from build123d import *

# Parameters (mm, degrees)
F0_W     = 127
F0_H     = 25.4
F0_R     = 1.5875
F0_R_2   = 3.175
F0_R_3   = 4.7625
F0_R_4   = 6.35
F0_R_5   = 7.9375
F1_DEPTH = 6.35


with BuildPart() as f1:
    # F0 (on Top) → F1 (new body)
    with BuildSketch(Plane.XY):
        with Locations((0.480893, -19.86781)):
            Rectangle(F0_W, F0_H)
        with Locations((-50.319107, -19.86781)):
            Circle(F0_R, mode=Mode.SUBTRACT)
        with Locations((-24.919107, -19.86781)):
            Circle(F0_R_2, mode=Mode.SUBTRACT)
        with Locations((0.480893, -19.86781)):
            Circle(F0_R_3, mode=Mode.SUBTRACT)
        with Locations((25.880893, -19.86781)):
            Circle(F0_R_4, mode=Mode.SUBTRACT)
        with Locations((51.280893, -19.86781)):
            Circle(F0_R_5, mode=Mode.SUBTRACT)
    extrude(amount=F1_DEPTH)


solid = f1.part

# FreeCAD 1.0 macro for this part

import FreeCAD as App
import Part
import Sketcher

V = App.Vector
Q = App.Units.Quantity

doc = App.newDocument("Part")
body = doc.addObject("PartDesign::Body", "Body")

# Sketch on XY plane
sketch1 = doc.addObject("Sketcher::SketchObject", "Sketch")
body.addObject(sketch1)
sketch1.AttachmentSupport = (doc.XY_Plane, [""])
sketch1.MapMode = "FlatFace"
sketch1.addGeometry(Part.LineSegment(V(-63, -7.2, 0), V(-63, -32.6, 0)), False)
sketch1.addGeometry(Part.LineSegment(V(-63, -32.6, 0), V(64, -32.6, 0)), False)
sketch1.addGeometry(Part.LineSegment(V(64, -32.6, 0), V(64, -7.2, 0)), False)
sketch1.addGeometry(Part.LineSegment(V(64, -7.2, 0), V(-63, -7.2, 0)), False)
sketch1.addGeometry(Part.Circle(V(-50.3, -19.9, 0), V(0, 0, 1), 1.6), False)
sketch1.addGeometry(Part.Circle(V(-24.9, -19.9, 0), V(0, 0, 1), 3.2), False)
sketch1.addGeometry(Part.Circle(V(0.5, -19.9, 0), V(0, 0, 1), 4.8), False)
sketch1.addGeometry(Part.Circle(V(25.9, -19.9, 0), V(0, 0, 1), 6.3), False)
sketch1.addGeometry(Part.Circle(V(51.3, -19.9, 0), V(0, 0, 1), 7.9), False)
sketch1.addConstraint(Sketcher.Constraint("Coincident", 0, 2, 1, 1))
sketch1.addConstraint(Sketcher.Constraint("Coincident", 1, 2, 2, 1))
sketch1.addConstraint(Sketcher.Constraint("Coincident", 2, 2, 3, 1))
sketch1.addConstraint(Sketcher.Constraint("Coincident", 3, 2, 0, 1))
sketch1.addConstraint(Sketcher.Constraint("Vertical", 0))
sketch1.addConstraint(Sketcher.Constraint("Horizontal", 1))
sketch1.addConstraint(Sketcher.Constraint("Vertical", 2))
sketch1.addConstraint(Sketcher.Constraint("Horizontal", 3))
sketch1.addConstraint(Sketcher.Constraint("Horizontal", 4, 3, 5, 3))
sketch1.addConstraint(Sketcher.Constraint("Horizontal", 5, 3, 6, 3))
sketch1.addConstraint(Sketcher.Constraint("Horizontal", 6, 3, 7, 3))
sketch1.addConstraint(Sketcher.Constraint("Horizontal", 7, 3, 8, 3))
sketch1.addConstraint(Sketcher.Constraint("Diameter", 7, Q("0.5 in")))
sketch1.addConstraint(Sketcher.Constraint("Diameter", 5, Q("0.25 in")))
sketch1.addConstraint(Sketcher.Constraint("DistanceX", 1, 1, 1, 2, Q("5 in")))
sketch1.addConstraint(Sketcher.Constraint("DistanceY", 0, 2, 0, 1, Q("1 in")))
sketch1.addConstraint(Sketcher.Constraint("Diameter", 4, Q("0.125 in")))
sketch1.addConstraint(Sketcher.Constraint("Diameter", 6, Q("0.375 in")))
sketch1.addConstraint(Sketcher.Constraint("Diameter", 8, Q("0.625 in")))
sketch1.addConstraint(Sketcher.Constraint("DistanceX", 4, 3, 5, 3, Q("1 in")))
sketch1.addConstraint(Sketcher.Constraint("DistanceX", 5, 3, 6, 3, Q("1 in")))
sketch1.addConstraint(Sketcher.Constraint("DistanceX", 6, 3, 7, 3, Q("1 in")))
sketch1.addConstraint(Sketcher.Constraint("DistanceX", 7, 3, 8, 3, Q("1 in")))
sketch1.addConstraint(Sketcher.Constraint("DistanceX", 0, 2, 4, 3, Q("0.5 in")))
sketch1.addConstraint(Sketcher.Constraint("DistanceY", 0, 2, 4, 3, Q("0.5 in")))
sketch1.addConstraint(Sketcher.Constraint("DistanceY", 4, 3, -1, 1, 19.86781))
sketch1.addConstraint(Sketcher.Constraint("DistanceX", 4, 3, -1, 1, 50.319107))
pad1 = doc.addObject("PartDesign::Pad", "Pad")
body.addObject(pad1)
pad1.Profile = sketch1
pad1.Length = Q("0.25 in")

doc.recompute()
